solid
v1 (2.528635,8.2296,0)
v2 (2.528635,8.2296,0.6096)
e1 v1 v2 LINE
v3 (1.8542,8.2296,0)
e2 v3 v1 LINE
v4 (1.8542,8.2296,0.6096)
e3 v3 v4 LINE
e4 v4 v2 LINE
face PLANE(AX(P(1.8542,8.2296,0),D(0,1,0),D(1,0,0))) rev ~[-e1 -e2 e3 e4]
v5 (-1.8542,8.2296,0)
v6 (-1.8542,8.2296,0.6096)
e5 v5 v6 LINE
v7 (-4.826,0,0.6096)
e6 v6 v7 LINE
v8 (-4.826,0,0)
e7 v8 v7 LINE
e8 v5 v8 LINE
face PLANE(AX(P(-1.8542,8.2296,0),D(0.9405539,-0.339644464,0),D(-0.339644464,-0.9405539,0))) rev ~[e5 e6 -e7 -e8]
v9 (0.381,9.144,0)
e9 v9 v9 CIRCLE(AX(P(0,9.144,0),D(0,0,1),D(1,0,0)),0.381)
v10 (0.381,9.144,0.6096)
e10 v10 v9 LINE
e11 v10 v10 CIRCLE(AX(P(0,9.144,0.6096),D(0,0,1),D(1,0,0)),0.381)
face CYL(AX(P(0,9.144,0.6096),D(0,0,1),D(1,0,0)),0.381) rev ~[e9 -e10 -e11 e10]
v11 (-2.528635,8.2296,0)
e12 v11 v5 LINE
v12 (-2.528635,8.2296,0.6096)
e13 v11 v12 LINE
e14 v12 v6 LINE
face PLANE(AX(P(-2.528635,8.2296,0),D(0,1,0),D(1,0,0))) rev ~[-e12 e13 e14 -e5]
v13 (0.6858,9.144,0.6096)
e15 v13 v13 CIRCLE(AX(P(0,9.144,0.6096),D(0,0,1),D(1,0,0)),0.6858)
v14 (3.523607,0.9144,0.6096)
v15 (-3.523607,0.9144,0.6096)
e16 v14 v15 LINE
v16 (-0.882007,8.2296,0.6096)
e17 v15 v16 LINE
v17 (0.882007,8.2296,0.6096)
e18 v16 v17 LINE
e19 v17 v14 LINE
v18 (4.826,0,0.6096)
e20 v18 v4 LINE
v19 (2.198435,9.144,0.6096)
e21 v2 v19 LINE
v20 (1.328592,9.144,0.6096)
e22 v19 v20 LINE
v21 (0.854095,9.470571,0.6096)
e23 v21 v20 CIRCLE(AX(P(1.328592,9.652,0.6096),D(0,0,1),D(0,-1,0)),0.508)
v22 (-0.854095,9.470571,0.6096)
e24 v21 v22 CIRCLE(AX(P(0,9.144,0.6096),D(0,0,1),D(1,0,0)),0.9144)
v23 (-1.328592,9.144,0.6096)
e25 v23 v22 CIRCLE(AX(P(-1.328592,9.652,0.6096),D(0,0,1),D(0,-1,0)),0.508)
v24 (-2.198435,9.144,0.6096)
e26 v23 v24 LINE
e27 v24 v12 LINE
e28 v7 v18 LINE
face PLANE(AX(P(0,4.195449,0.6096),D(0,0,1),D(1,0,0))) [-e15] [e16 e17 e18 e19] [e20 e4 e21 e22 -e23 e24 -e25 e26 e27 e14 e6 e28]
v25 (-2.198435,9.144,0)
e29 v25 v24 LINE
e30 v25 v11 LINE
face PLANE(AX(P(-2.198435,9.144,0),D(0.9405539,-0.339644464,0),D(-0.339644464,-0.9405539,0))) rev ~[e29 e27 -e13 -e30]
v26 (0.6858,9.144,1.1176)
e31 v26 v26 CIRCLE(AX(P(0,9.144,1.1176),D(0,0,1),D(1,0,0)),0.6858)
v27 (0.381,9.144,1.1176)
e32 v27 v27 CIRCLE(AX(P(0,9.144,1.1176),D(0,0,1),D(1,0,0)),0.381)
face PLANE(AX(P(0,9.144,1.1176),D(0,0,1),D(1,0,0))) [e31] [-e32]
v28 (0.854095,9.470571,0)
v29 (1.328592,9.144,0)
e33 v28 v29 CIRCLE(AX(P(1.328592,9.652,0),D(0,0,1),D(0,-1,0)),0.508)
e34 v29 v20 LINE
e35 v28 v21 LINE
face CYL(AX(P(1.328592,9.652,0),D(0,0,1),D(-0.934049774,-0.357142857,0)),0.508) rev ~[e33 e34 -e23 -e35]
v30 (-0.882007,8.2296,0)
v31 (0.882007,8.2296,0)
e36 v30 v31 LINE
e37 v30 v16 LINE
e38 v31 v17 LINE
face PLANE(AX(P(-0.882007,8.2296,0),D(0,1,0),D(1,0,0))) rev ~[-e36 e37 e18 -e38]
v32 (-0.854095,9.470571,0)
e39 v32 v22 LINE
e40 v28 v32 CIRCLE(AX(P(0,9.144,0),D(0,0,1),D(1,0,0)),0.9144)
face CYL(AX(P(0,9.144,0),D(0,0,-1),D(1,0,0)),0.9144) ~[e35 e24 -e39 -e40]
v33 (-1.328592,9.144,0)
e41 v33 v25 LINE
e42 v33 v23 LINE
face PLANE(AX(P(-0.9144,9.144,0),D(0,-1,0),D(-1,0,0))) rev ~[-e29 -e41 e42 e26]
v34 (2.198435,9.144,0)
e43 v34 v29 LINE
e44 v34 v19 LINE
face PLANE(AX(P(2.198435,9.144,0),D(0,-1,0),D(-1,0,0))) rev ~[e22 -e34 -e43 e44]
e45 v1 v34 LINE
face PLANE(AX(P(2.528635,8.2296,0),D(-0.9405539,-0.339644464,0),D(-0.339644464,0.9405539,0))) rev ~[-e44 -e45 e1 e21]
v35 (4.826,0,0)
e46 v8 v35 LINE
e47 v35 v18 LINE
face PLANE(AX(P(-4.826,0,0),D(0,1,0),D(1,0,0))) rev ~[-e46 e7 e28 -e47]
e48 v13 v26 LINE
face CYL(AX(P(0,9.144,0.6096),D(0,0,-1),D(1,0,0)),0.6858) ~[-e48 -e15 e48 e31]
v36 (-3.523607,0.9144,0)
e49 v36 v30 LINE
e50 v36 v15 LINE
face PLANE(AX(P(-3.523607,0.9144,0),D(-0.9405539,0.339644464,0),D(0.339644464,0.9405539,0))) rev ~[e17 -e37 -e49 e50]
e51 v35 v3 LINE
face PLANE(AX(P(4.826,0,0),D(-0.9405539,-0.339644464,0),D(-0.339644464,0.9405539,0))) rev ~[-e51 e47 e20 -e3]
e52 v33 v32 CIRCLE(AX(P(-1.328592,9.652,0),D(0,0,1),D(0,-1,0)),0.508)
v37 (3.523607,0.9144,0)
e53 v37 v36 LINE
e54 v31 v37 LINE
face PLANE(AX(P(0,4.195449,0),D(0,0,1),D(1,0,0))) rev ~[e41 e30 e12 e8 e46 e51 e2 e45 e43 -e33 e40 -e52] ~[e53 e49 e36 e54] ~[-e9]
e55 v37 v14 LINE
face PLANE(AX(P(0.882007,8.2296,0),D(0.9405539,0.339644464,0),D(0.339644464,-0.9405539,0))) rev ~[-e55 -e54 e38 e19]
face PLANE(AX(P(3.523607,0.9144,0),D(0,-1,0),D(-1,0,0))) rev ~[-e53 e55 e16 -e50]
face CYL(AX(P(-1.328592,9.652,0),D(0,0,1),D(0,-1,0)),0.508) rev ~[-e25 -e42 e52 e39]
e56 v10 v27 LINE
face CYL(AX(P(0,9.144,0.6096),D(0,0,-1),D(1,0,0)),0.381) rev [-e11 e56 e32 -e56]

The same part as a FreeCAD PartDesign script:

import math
import FreeCAD as App
import Part
import Sketcher
Q = App.Units.Quantity


def edges_at(feature, points):
    """Names of the edges that pass closest to the given points."""
    edges = feature.Shape.Edges
    near = lambda p: min(range(len(edges)), key=lambda i: edges[i].distToShape(Part.Vertex(*p))[0])
    return sorted({f"Edge{near(p) + 1}" for p in points})

doc = App.newDocument("Part")
body = doc.addObject("PartDesign::Body", "Body")

# Sketch on XY plane
sketch1 = body.newObject("Sketcher::SketchObject", "Sketch")
sketch1.AttachmentSupport = (doc.getObject("XY_Plane"), [""])
sketch1.MapMode = "FlatFace"
sketch1.addGeometry([
    Part.LineSegment(App.Vector(-1.9, 8.2, 0), App.Vector(-4.8, 0, 0)),  # 0
    Part.LineSegment(App.Vector(-4.8, 0, 0), App.Vector(4.8, 0, 0)),  # 1
    Part.LineSegment(App.Vector(4.8, 0, 0), App.Vector(1.9, 8.2, 0)),  # 2
    Part.LineSegment(App.Vector(1.9, 8.2, 0), App.Vector(2.5, 8.2, 0)),  # 3
    Part.LineSegment(App.Vector(2.5, 8.2, 0), App.Vector(2.2, 9.1, 0)),  # 4
    Part.LineSegment(App.Vector(2.2, 9.1, 0), App.Vector(0.9, 9.1, 0)),  # 5
    Part.ArcOfCircle(Part.Circle(App.Vector(0, 9.1, 0), App.Vector(0, 0, 1), 0.9), math.radians(0), math.radians(180)),  # 6
    Part.LineSegment(App.Vector(-0.9, 9.1, 0), App.Vector(-2.2, 9.1, 0)),  # 7
    Part.LineSegment(App.Vector(-2.2, 9.1, 0), App.Vector(-2.5, 8.2, 0)),  # 8
    Part.LineSegment(App.Vector(-2.5, 8.2, 0), App.Vector(-1.9, 8.2, 0)),  # 9
    Part.LineSegment(App.Vector(0.9, 8.2, 0), App.Vector(3.5, 0.9, 0)),  # 10
    Part.LineSegment(App.Vector(3.5, 0.9, 0), App.Vector(-3.5, 0.9, 0)),  # 11
    Part.LineSegment(App.Vector(-3.5, 0.9, 0), App.Vector(-0.9, 8.2, 0)),  # 12
    Part.LineSegment(App.Vector(-0.9, 8.2, 0), App.Vector(0.9, 8.2, 0)),  # 13
], False)
sketch1.addConstraint([
    Sketcher.Constraint("Coincident", 0, 2, 1, 1),
    Sketcher.Constraint("Coincident", 1, 2, 2, 1),
    Sketcher.Constraint("Coincident", 2, 2, 3, 1),
    Sketcher.Constraint("Coincident", 3, 2, 4, 1),
    Sketcher.Constraint("Coincident", 4, 2, 5, 1),
    Sketcher.Constraint("Coincident", 5, 2, 6, 1),
    Sketcher.Constraint("Coincident", 6, 2, 7, 1),
    Sketcher.Constraint("Coincident", 7, 2, 8, 1),
    Sketcher.Constraint("Coincident", 8, 2, 9, 1),
    Sketcher.Constraint("Coincident", 9, 2, 0, 1),
    Sketcher.Constraint("Coincident", 10, 2, 11, 1),
    Sketcher.Constraint("Coincident", 11, 2, 12, 1),
    Sketcher.Constraint("Coincident", 12, 2, 13, 1),
    Sketcher.Constraint("Coincident", 13, 2, 10, 1),
    Sketcher.Constraint("Horizontal", 1),
    Sketcher.Constraint("Horizontal", 3),
    Sketcher.Constraint("Horizontal", 5),
    Sketcher.Constraint("Horizontal", 7),
    Sketcher.Constraint("Horizontal", 9),
    Sketcher.Constraint("Horizontal", 11),
    Sketcher.Constraint("Horizontal", 13),
    Sketcher.Constraint("Symmetric", 0, 2, 1, 2, -1, 1),
    Sketcher.Constraint("Symmetric", 5, 2, 6, 2, -2),
    Sketcher.Constraint("Symmetric", 3, 2, 8, 2, -2),
    Sketcher.Constraint("Parallel", 2, 4),
    Sketcher.Constraint("Parallel", 0, 8),
    Sketcher.Constraint("Parallel", 4, 10),
    Sketcher.Constraint("Parallel", 8, 12),
    Sketcher.Constraint("Horizontal", 6, 3, 4, 2),
    Sketcher.Constraint("Horizontal", 9, 2, 12, 2),
    Sketcher.Constraint("Equal", 5, 7),
    Sketcher.Constraint("Radius", 6, Q("0.036 in")),
    Sketcher.Constraint("DistanceX", 1, 1, 1, 2, Q("0.38 in")),
    Sketcher.Constraint("DistanceY", -1, 1, 6, 3, Q("0.36 in")),
    Sketcher.Constraint("DistanceX", -1, 1, 2, 2, Q("0.073 in")),
    Sketcher.Constraint("DistanceY", -1, 1, 2, 2, Q("0.324 in")),
    Sketcher.Constraint("DistanceY", -1, 1, 10, 2, Q("0.036 in")),
    Sketcher.Constraint("DistanceX", 3, 1, 3, 2, 0.674435),
    Sketcher.Constraint("DistanceX", 11, 2, 11, 1, 7.047214),
    Sketcher.Constraint("DistanceX", -1, 1, 10, 2, 3.523607),
])
pad1 = body.newObject("PartDesign::Pad", "Pad")
pad1.Profile = sketch1
pad1.Length = Q("0.024 in")

# Sketch on XY plane
sketch2 = body.newObject("Sketcher::SketchObject", "Sketch001")
sketch2.AttachmentSupport = (doc.getObject("XY_Plane"), [""])
sketch2.MapMode = "FlatFace"
sketch2.AttachmentOffset = App.Placement(App.Vector(0, 0, 0.024 * 25.4), App.Rotation())
sketch2.addGeometry(Part.Circle(App.Vector(0, 9.14, 0), App.Vector(0, 0, 1), 0.38), False)
sketch2.addConstraint([
    Sketcher.Constraint("PointOnObject", 0, 3, -2),
    Sketcher.Constraint("Diameter", 0, Q("0.03 in")),
    Sketcher.Constraint("DistanceY", -1, 1, 0, 3, Q("0.36 in")),
])
pocket1 = body.newObject("PartDesign::Pocket", "Pocket")
pocket1.Profile = sketch2
pocket1.Length = Q("1 in")
doc.recompute()

fillet = body.newObject("PartDesign::Fillet", "Fillet")
fillet.Base = (pocket1, edges_at(pocket1, [(0.914, 9.144, 0.305), (-0.914, 9.144, 0.305)]))
fillet.Radius = Q("0.02 in")

# Sketch on XY plane
sketch3 = body.newObject("Sketcher::SketchObject", "Sketch002")
sketch3.AttachmentSupport = (doc.getObject("XY_Plane"), [""])
sketch3.MapMode = "FlatFace"
sketch3.AttachmentOffset = App.Placement(App.Vector(0, 0, 0.024 * 25.4), App.Rotation())
sketch3.addGeometry([
    Part.Circle(App.Vector(0, 9.14, 0), App.Vector(0, 0, 1), 0.69),
    Part.Circle(App.Vector(0, 9.14, 0), App.Vector(0, 0, 1), 0.38),
], False)
sketch3.addConstraint([
    Sketcher.Constraint("Coincident", 1, 3, 0, 3),
    Sketcher.Constraint("PointOnObject", 0, 3, -2),
    Sketcher.Constraint("Diameter", 1, Q("0.03 in")),
    Sketcher.Constraint("Diameter", 0, Q("0.054 in")),
    Sketcher.Constraint("DistanceY", -1, 1, 0, 3, Q("0.36 in")),
])
pad2 = body.newObject("PartDesign::Pad", "Pad001")
pad2.Profile = sketch3
pad2.Length = Q("0.02 in")

doc.recompute()
